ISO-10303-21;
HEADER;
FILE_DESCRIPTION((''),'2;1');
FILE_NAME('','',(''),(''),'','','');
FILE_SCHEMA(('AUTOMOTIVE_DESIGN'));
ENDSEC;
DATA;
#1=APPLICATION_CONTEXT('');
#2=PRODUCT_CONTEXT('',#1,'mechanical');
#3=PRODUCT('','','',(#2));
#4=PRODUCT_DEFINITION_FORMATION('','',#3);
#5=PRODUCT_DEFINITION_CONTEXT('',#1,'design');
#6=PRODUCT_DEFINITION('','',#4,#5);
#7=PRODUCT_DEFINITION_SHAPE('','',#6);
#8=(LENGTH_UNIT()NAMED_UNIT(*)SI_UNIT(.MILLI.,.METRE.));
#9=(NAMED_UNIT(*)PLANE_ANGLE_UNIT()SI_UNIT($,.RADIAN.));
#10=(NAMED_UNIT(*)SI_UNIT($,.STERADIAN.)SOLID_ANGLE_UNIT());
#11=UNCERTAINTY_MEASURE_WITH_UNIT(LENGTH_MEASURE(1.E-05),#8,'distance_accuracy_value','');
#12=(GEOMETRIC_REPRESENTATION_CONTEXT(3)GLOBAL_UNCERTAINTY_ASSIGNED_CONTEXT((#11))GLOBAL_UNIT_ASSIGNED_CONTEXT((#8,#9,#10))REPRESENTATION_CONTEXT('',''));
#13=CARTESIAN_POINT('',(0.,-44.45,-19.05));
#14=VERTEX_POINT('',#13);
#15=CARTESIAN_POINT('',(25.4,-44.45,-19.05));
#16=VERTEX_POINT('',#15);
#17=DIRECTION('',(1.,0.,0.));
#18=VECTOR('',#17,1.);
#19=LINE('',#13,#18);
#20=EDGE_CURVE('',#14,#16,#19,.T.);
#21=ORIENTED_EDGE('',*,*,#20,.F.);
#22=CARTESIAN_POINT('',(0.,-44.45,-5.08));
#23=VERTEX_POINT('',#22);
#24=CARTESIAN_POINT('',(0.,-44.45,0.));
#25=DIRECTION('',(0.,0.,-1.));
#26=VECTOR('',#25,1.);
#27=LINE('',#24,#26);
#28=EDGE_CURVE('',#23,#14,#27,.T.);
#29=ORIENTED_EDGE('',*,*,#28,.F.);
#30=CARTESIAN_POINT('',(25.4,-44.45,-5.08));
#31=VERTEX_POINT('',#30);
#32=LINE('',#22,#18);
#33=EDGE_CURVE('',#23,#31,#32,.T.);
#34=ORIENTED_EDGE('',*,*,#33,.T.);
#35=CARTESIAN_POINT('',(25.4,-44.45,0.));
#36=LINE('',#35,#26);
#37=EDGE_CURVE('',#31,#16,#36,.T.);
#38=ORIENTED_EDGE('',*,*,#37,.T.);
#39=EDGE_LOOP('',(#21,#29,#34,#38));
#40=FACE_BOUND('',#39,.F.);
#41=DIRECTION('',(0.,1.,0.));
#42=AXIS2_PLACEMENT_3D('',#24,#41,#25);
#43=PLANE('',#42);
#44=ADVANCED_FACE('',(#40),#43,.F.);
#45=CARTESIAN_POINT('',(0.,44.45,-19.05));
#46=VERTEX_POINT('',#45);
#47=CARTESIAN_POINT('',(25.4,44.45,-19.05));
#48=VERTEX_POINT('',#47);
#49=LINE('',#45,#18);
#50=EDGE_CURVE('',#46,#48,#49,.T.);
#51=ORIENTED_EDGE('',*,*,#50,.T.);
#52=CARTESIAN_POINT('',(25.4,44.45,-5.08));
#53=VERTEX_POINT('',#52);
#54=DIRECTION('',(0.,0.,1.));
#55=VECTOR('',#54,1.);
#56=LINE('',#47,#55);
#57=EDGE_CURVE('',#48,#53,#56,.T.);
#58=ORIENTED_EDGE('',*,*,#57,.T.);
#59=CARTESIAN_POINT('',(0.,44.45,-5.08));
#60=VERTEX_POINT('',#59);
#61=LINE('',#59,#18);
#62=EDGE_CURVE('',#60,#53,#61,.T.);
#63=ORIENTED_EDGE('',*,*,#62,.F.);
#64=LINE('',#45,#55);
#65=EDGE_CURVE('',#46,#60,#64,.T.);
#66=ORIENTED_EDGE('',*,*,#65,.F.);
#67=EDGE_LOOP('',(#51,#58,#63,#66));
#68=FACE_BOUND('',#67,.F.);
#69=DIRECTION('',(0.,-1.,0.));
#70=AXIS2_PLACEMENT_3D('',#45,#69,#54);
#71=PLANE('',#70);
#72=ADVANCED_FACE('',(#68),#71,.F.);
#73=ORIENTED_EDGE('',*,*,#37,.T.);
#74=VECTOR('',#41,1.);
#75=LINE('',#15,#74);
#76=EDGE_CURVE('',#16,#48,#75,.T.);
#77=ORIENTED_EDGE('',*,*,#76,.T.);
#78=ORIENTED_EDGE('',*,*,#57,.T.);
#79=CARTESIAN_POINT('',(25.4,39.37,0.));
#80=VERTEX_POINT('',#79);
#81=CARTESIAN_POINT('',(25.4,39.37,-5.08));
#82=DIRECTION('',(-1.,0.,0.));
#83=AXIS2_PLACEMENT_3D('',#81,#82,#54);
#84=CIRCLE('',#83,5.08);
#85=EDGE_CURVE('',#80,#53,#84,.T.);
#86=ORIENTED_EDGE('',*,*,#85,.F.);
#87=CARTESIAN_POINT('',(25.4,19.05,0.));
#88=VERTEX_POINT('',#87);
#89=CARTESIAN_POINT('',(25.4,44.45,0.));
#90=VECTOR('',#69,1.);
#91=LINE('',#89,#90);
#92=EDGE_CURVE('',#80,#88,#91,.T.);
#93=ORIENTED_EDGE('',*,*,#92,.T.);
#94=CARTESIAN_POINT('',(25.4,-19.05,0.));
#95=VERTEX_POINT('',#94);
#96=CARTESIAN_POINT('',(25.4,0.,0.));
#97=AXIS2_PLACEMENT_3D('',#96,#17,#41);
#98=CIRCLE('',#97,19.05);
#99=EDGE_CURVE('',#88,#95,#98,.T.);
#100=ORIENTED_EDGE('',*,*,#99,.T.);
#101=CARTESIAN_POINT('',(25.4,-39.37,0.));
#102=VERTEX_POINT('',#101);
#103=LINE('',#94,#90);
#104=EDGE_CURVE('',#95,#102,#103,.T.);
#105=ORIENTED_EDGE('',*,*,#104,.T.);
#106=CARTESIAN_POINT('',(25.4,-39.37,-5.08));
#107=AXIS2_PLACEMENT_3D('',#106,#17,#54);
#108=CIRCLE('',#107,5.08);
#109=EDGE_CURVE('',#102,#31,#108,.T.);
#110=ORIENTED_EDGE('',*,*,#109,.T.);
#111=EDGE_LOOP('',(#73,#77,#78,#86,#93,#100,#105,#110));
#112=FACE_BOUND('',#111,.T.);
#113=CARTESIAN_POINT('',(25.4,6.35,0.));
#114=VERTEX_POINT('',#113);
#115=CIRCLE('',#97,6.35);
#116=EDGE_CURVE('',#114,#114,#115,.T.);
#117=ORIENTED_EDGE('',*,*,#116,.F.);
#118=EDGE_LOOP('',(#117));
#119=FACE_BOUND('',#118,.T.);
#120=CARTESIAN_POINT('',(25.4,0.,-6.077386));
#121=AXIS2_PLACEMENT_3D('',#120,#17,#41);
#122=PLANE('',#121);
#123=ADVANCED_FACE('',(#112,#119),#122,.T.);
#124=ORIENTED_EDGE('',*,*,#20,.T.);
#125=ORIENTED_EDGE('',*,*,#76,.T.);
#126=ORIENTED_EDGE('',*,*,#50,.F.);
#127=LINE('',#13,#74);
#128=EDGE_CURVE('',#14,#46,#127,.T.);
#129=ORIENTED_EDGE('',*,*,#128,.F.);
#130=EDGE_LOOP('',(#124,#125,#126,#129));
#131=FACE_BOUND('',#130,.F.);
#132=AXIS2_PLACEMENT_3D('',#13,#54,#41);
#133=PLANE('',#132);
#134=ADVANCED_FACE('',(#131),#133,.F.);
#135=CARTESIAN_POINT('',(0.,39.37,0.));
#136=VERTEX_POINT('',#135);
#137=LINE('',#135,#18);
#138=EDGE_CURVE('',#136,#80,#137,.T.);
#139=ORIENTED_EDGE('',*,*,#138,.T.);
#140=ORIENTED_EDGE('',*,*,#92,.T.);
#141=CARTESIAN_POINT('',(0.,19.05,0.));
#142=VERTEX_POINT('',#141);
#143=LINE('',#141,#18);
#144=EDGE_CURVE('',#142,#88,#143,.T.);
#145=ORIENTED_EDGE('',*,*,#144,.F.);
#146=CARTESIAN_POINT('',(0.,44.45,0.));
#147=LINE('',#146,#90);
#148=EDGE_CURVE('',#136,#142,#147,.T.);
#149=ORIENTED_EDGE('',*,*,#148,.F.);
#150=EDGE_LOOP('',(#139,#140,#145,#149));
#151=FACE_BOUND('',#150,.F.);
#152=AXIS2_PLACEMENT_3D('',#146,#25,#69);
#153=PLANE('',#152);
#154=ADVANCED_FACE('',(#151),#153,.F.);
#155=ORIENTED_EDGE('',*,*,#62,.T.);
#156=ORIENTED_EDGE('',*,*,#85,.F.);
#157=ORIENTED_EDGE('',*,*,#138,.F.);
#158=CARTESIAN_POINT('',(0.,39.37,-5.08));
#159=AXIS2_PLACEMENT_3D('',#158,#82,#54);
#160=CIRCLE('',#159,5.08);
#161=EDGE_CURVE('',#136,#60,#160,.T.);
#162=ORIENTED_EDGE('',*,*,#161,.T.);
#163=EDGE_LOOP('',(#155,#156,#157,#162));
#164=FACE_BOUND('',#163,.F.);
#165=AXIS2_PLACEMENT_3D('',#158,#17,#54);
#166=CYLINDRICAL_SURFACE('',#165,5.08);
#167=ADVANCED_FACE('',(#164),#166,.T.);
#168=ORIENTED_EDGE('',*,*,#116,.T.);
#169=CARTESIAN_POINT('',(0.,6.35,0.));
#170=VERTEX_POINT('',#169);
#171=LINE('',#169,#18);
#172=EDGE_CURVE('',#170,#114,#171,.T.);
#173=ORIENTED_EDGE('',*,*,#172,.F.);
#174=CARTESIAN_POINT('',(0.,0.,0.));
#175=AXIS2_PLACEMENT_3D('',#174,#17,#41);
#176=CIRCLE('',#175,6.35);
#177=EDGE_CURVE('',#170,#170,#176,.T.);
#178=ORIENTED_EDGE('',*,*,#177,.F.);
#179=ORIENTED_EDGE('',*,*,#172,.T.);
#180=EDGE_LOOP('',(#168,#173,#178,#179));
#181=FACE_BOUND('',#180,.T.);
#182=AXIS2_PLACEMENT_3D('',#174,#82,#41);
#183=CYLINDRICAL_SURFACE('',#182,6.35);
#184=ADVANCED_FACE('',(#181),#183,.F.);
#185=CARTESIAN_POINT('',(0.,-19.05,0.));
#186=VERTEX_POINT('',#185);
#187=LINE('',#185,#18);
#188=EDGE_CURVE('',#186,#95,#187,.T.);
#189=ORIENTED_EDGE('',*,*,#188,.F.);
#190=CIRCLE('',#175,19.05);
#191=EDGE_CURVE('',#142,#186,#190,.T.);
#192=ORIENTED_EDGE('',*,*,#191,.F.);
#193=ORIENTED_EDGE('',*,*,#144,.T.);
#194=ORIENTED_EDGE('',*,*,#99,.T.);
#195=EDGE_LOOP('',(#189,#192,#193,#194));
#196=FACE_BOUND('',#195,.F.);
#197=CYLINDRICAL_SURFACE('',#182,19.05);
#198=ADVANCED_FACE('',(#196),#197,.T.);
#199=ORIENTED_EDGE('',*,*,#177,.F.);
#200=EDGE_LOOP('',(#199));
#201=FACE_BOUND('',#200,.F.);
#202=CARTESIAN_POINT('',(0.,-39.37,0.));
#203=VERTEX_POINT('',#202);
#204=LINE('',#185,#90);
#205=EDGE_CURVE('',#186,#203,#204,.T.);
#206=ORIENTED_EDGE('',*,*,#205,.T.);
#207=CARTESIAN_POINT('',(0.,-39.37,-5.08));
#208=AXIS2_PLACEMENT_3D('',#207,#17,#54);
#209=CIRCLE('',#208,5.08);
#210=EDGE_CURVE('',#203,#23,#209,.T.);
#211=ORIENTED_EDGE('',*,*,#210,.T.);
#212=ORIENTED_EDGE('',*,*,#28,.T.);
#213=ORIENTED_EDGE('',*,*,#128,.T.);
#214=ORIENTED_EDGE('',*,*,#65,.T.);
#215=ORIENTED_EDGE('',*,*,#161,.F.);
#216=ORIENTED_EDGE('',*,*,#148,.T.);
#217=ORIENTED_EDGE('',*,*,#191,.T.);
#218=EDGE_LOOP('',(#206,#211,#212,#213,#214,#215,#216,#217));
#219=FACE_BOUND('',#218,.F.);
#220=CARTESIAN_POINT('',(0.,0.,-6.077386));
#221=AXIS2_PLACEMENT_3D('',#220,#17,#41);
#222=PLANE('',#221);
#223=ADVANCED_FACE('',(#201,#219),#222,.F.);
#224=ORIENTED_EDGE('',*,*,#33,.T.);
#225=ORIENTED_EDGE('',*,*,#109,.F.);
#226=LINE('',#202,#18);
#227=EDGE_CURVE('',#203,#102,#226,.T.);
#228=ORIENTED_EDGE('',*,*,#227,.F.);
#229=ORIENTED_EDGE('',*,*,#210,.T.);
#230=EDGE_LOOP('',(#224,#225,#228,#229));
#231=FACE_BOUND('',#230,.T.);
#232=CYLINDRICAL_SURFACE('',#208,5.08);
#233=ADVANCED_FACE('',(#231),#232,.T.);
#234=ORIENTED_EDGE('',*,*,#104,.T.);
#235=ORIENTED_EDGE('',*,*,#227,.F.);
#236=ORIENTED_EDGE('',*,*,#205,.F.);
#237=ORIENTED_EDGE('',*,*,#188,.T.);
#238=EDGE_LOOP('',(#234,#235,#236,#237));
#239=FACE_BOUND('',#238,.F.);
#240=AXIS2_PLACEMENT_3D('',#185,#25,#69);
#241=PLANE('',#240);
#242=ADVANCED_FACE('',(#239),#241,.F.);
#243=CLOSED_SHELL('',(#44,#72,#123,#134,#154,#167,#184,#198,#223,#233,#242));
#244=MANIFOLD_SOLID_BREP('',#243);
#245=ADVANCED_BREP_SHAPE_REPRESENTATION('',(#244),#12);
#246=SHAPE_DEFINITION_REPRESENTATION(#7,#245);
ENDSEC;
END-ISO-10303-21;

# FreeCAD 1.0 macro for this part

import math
import FreeCAD as App
import Part
import Sketcher
from FreeCAD import Vector
Q = App.Units.Quantity


def edges_at(feature, points):
    """Names of the edges that pass closest to the given points."""
    edges = feature.Shape.Edges
    near = lambda p: min(range(len(edges)), key=lambda i: edges[i].distToShape(Part.Vertex(*p))[0])
    return sorted({f"Edge{near(p) + 1}" for p in points})

doc = App.newDocument("Part")
body = doc.addObject("PartDesign::Body", "Body")

# Sketch on YZ plane
sketch1 = body.newObject("Sketcher::SketchObject", "Sketch")
sketch1.AttachmentSupport = (doc.getObject("YZ_Plane"), [""])
sketch1.MapMode = "FlatFace"
sketch1.addGeometry(Part.LineSegment(Vector(44, 0, 0), Vector(19, 0, 0)), False)
sketch1.addGeometry(Part.ArcOfCircle(Part.Circle(Vector(0, 0, 0), Vector(0, 0, 1), 19), math.radians(0), math.radians(180)), False)
sketch1.addGeometry(Part.LineSegment(Vector(-19, 0, 0), Vector(-44, 0, 0)), False)
sketch1.addGeometry(Part.LineSegment(Vector(-44, 0, 0), Vector(-44, -19, 0)), False)
sketch1.addGeometry(Part.LineSegment(Vector(-44, -19, 0), Vector(44, -19, 0)), False)
sketch1.addGeometry(Part.LineSegment(Vector(44, -19, 0), Vector(44, 0, 0)), False)
sketch1.addGeometry(Part.Circle(Vector(0, 0, 0), Vector(0, 0, 1), 6), False)
sketch1.addConstraint(Sketcher.Constraint("Coincident", 0, 2, 1, 1))
sketch1.addConstraint(Sketcher.Constraint("Coincident", 1, 2, 2, 1))
sketch1.addConstraint(Sketcher.Constraint("Coincident", 2, 2, 3, 1))
sketch1.addConstraint(Sketcher.Constraint("Coincident", 3, 2, 4, 1))
sketch1.addConstraint(Sketcher.Constraint("Coincident", 4, 2, 5, 1))
sketch1.addConstraint(Sketcher.Constraint("Coincident", 5, 2, 0, 1))
sketch1.addConstraint(Sketcher.Constraint("Horizontal", 0))
sketch1.addConstraint(Sketcher.Constraint("Horizontal", 2))
sketch1.addConstraint(Sketcher.Constraint("Vertical", 3))
sketch1.addConstraint(Sketcher.Constraint("Horizontal", 4))
sketch1.addConstraint(Sketcher.Constraint("Vertical", 5))
sketch1.addConstraint(Sketcher.Constraint("Coincident", 1, 3, -1, 1))
sketch1.addConstraint(Sketcher.Constraint("Coincident", 6, 3, -1, 1))
sketch1.addConstraint(Sketcher.Constraint("Symmetric", 2, 2, 5, 2, -1, 1))
sketch1.addConstraint(Sketcher.Constraint("PointOnObject", 0, 2, -1))
sketch1.addConstraint(Sketcher.Constraint("Diameter", 6, Q("0.5 in")))
sketch1.addConstraint(Sketcher.Constraint("DistanceX", 0, 2, 0, 1, Q("1 in")))
sketch1.addConstraint(Sketcher.Constraint("Radius", 1, Q("0.75 in")))
sketch1.addConstraint(Sketcher.Constraint("DistanceY", 3, 2, 3, 1, Q("0.75 in")))
pad1 = body.newObject("PartDesign::Pad", "Pad")
pad1.Profile = sketch1
pad1.Length = Q("1 in")
doc.recompute()

fillet = body.newObject("PartDesign::Fillet", "Fillet")
fillet.Base = (pad1, edges_at(pad1, [(12.7, 44.45, 0)]))
fillet.Radius = Q("0.2 in")
doc.recompute()

fillet2 = body.newObject("PartDesign::Fillet", "Fillet001")
fillet2.Base = (fillet, edges_at(fillet, [(12.7, -44.45, 0)]))
fillet2.Radius = Q("0.2 in")

doc.recompute()
